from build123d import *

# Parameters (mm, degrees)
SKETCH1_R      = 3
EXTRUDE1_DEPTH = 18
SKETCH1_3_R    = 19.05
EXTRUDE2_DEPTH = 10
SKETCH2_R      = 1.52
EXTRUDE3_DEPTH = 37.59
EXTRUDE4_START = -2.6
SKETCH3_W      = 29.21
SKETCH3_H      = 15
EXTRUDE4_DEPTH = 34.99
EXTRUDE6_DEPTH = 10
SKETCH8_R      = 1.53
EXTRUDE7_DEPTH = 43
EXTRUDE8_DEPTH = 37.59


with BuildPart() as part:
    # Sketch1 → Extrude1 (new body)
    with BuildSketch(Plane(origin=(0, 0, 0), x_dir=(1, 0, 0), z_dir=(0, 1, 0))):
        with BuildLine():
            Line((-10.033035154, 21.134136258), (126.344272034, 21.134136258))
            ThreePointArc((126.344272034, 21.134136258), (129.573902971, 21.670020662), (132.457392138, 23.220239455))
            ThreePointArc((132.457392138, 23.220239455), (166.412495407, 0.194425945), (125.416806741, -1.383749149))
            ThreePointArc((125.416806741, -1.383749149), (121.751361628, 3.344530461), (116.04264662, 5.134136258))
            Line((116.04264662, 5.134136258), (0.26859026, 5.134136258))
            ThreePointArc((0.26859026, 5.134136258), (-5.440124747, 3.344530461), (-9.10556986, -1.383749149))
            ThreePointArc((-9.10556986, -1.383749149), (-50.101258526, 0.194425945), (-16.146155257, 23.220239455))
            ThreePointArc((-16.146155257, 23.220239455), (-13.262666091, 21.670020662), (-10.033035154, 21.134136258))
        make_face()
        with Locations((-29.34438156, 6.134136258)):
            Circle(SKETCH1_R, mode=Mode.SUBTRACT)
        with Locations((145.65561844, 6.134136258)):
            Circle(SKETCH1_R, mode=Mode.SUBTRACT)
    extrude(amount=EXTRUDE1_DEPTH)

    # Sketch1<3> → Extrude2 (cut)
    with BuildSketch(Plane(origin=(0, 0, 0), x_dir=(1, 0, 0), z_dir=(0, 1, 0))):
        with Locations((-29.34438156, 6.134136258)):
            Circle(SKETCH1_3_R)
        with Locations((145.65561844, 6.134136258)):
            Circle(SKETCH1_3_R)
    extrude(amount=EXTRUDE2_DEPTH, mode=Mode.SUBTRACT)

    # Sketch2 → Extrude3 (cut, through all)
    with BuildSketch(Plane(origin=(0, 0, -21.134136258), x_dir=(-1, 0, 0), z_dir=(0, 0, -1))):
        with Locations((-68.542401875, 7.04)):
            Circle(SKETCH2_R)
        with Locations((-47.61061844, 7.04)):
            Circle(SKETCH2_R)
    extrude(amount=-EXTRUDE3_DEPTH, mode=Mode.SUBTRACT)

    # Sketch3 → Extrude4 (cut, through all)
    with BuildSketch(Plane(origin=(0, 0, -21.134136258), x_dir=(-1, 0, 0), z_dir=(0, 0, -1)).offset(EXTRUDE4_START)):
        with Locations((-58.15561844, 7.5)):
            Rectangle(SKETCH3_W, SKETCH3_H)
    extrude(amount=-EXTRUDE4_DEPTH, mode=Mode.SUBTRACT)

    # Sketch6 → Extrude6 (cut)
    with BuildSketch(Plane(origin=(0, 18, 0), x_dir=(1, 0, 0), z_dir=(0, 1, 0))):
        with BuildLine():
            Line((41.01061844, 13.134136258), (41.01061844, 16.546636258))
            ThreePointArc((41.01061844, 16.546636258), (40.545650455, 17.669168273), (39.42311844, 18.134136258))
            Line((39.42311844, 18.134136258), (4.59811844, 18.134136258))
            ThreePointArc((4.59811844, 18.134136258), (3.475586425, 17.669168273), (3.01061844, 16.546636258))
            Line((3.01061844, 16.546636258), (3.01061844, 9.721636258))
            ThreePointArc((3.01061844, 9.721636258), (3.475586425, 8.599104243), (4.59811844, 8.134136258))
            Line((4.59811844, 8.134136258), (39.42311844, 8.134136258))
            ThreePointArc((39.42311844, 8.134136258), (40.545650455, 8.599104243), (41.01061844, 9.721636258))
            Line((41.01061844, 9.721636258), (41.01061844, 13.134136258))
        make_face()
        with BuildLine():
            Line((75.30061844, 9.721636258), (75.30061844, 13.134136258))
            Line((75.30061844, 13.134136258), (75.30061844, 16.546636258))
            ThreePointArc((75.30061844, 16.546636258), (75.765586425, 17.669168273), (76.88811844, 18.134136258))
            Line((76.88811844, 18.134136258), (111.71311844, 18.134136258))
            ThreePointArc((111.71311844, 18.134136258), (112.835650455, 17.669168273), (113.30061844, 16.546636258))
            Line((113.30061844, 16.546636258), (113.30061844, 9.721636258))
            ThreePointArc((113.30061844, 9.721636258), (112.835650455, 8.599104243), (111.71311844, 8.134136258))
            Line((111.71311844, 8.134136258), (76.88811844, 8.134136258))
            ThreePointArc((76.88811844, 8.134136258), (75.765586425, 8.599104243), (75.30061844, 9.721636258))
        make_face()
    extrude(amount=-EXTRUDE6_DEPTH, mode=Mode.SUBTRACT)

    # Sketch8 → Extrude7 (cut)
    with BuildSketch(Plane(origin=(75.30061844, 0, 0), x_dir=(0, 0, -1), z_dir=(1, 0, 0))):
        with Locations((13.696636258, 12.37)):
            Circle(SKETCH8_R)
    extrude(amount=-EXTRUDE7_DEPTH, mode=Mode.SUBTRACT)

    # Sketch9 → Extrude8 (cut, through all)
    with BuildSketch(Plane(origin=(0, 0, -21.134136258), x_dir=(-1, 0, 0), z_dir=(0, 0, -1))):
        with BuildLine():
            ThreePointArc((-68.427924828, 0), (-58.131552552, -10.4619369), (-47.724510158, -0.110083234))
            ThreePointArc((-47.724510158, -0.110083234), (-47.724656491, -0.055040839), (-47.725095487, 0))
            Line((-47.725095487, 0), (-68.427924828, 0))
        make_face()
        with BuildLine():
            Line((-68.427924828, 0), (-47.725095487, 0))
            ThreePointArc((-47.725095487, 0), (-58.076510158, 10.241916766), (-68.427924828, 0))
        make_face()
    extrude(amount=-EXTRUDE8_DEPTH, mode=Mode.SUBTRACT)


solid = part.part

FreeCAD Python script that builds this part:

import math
import FreeCAD as App
import Part
import Sketcher

doc = App.newDocument("Part")
params = doc.addObject("Spreadsheet::Sheet", "Params")
for row, (alias, value) in enumerate([
    ("sketch1_diameter", "6 mm"),
    ("sketch1_radius", "10 mm"),
    ("sketch1_radius2", "21.59 mm"),
    ("pad1_length", "18 mm"),
    ("sketch2_diameter", "38.1 mm"),
    ("pocket1_length", "10 mm"),
    ("sketch3_diameter", "3.04 mm"),
    ("sketch4_height", "15 mm"),
    ("sketch4_width", "29.21 mm"),
    ("pocket4_length", "10 mm"),
    ("sketch6_diameter", "3.06 mm"),
    ("pocket5_length", "43 mm"),
], start=1):
    params.set(f"A{row}", alias)
    params.set(f"B{row}", "=" + value)
    params.setAlias(f"B{row}", alias)

body = doc.addObject("PartDesign::Body", "Body")

sketch1 = body.newObject("Sketcher::SketchObject", "Sketch")
sketch1.AttachmentSupport = (doc.getObject("XZ_Plane"), [""])
sketch1.MapMode = "FlatFace"
sketch1.addGeometry([
    Part.LineSegment(App.Vector(126.3, -21.1, 0), App.Vector(-10, -21.1, 0)),
    Part.ArcOfCircle(Part.Circle(App.Vector(-10, -31.1, 0), App.Vector(0, 0, 1), 10), math.radians(90), math.radians(128)),
    Part.ArcOfCircle(Part.Circle(App.Vector(-29.3, -6.1, 0), App.Vector(0, 0, 1), 21.6), math.radians(20), math.radians(308)),
    Part.ArcOfCircle(Part.Circle(App.Vector(0.3, 4.9, 0), App.Vector(0, 0, 1), 10), math.radians(-160), math.radians(-90)),
    Part.LineSegment(App.Vector(0.3, -5.1, 0), App.Vector(116, -5.1, 0)),
    Part.ArcOfCircle(Part.Circle(App.Vector(116, 4.9, 0), App.Vector(0, 0, 1), 10), math.radians(-90), math.radians(-20)),
    Part.ArcOfCircle(Part.Circle(App.Vector(145.7, -6.1, 0), App.Vector(0, 0, 1), 21.6), math.radians(-128), math.radians(160)),
    Part.ArcOfCircle(Part.Circle(App.Vector(126.3, -31.1, 0), App.Vector(0, 0, 1), 10), math.radians(52), math.radians(90)),
    Part.Circle(App.Vector(145.7, -6.1, 0), App.Vector(0, 0, 1), 3),
    Part.Circle(App.Vector(-29.3, -6.1, 0), App.Vector(0, 0, 1), 3),
], False)
sketch1.addConstraint([
    Sketcher.Constraint("Tangent", 0, 2, 1, 1),
    Sketcher.Constraint("Tangent", 1, 2, 2, 2),
    Sketcher.Constraint("Tangent", 2, 1, 3, 1),
    Sketcher.Constraint("Tangent", 3, 2, 4, 1),
    Sketcher.Constraint("Tangent", 4, 2, 5, 1),
    Sketcher.Constraint("Tangent", 5, 2, 6, 2),
    Sketcher.Constraint("Tangent", 6, 1, 7, 1),
    Sketcher.Constraint("Tangent", 7, 2, 0, 1),
    Sketcher.Constraint("Horizontal", 0),
    Sketcher.Constraint("Horizontal", 4),
    Sketcher.Constraint("Coincident", 8, 3, 6, 3),
    Sketcher.Constraint("Coincident", 9, 3, 2, 3),
    Sketcher.Constraint("Equal", 1, 3),
    Sketcher.Constraint("Equal", 3, 5),
    Sketcher.Constraint("Equal", 2, 6),
    Sketcher.Constraint("Equal", 5, 7),
    Sketcher.Constraint("Equal", 8, 9),
    Sketcher.Constraint("Horizontal", 2, 3, 6, 3),
    Sketcher.Constraint("Diameter", 8, 6.0),
    Sketcher.Constraint("Radius", 1, 10.0),
    Sketcher.Constraint("Radius", 2, 21.59),
    Sketcher.Constraint("DistanceY", 1, 3, 2, 3, 25.0),
    Sketcher.Constraint("DistanceY", 2, 3, 3, 3, 11.0),
    Sketcher.Constraint("DistanceX", 2, 3, 6, 3, 175.0),
    Sketcher.Constraint("DistanceX", 2, 3, -1, 1, 29.344382),
    Sketcher.Constraint("DistanceY", 1, 2, -1, 1, 23.220239),
])
sketch1.setExpression("Constraints[18]", "Params.sketch1_diameter")
sketch1.setExpression("Constraints[19]", "Params.sketch1_radius")
sketch1.setExpression("Constraints[20]", "Params.sketch1_radius2")
pad1 = body.newObject("PartDesign::Pad", "Pad")
pad1.Profile = sketch1
pad1.setExpression("Length", "Params.pad1_length")
pad1.Reversed = True

sketch2 = body.newObject("Sketcher::SketchObject", "Sketch001")
sketch2.AttachmentSupport = (doc.getObject("XZ_Plane"), [""])
sketch2.MapMode = "FlatFace"
sketch2.addGeometry([
    Part.Circle(App.Vector(-29, -6, 0), App.Vector(0, 0, 1), 19),
    Part.Circle(App.Vector(146, -6, 0), App.Vector(0, 0, 1), 19),
], False)
sketch2.addConstraint([
    Sketcher.Constraint("Equal", 0, 1),
    Sketcher.Constraint("Horizontal", 0, 3, 1, 3),
    Sketcher.Constraint("Diameter", 0, 38.1),
    Sketcher.Constraint("DistanceX", 0, 3, 1, 3, 175.0),
    Sketcher.Constraint("DistanceX", 0, 3, -1, 1, 29.344382),
    Sketcher.Constraint("DistanceY", 0, 3, -1, 1, 6.134136),
])
sketch2.setExpression("Constraints[2]", "Params.sketch2_diameter")
pocket1 = body.newObject("PartDesign::Pocket", "Pocket")
pocket1.Profile = sketch2
pocket1.setExpression("Length", "Params.pocket1_length")

sketch3 = body.newObject("Sketcher::SketchObject", "Sketch002")
sketch3.AttachmentSupport = (doc.getObject("XY_Plane"), [""])
sketch3.MapMode = "FlatFace"
sketch3.AttachmentOffset = App.Placement(App.Vector(0, 0, -21.134136), App.Rotation())
sketch3.addGeometry([
    Part.Circle(App.Vector(68.5, 7, 0), App.Vector(0, 0, 1), 1.5),
    Part.Circle(App.Vector(47.6, 7, 0), App.Vector(0, 0, 1), 1.5),
], False)
sketch3.addConstraint([
    Sketcher.Constraint("Equal", 0, 1),
    Sketcher.Constraint("Horizontal", 0, 3, 1, 3),
    Sketcher.Constraint("Diameter", 0, 3.04),
    Sketcher.Constraint("DistanceY", -1, 1, 0, 3, 7.04),
    Sketcher.Constraint("DistanceX", -1, 1, 0, 3, 68.542402),
    Sketcher.Constraint("DistanceX", -1, 1, 1, 3, 47.610618),
])
sketch3.setExpression("Constraints[2]", "Params.sketch3_diameter")
pocket2 = body.newObject("PartDesign::Pocket", "Pocket001")
pocket2.Profile = sketch3
pocket2.Type = "ThroughAll"
pocket2.Reversed = True

sketch4 = body.newObject("Sketcher::SketchObject", "Sketch003")
sketch4.AttachmentSupport = (doc.getObject("XY_Plane"), [""])
sketch4.MapMode = "FlatFace"
sketch4.AttachmentOffset = App.Placement(App.Vector(0, 0, -18.534136), App.Rotation())
sketch4.addGeometry([
    Part.LineSegment(App.Vector(73, 15, 0), App.Vector(73, 0, 0)),
    Part.LineSegment(App.Vector(73, 0, 0), App.Vector(44, 0, 0)),
    Part.LineSegment(App.Vector(44, 0, 0), App.Vector(44, 15, 0)),
    Part.LineSegment(App.Vector(44, 15, 0), App.Vector(73, 15, 0)),
], False)
sketch4.addConstraint([
    Sketcher.Constraint("Coincident", 0, 2, 1, 1),
    Sketcher.Constraint("Coincident", 1, 2, 2, 1),
    Sketcher.Constraint("Coincident", 2, 2, 3, 1),
    Sketcher.Constraint("Coincident", 3, 2, 0, 1),
    Sketcher.Constraint("Vertical", 0),
    Sketcher.Constraint("Horizontal", 1),
    Sketcher.Constraint("Vertical", 2),
    Sketcher.Constraint("Horizontal", 3),
    Sketcher.Constraint("PointOnObject", 0, 2, -1),
    Sketcher.Constraint("DistanceY", 0, 2, 0, 1, 15.0),
    Sketcher.Constraint("DistanceX", 1, 2, 1, 1, 29.21),
    Sketcher.Constraint("DistanceX", -1, 1, 0, 2, 72.760618),
])
sketch4.setExpression("Constraints[9]", "Params.sketch4_height")
sketch4.setExpression("Constraints[10]", "Params.sketch4_width")
pocket3 = body.newObject("PartDesign::Pocket", "Pocket002")
pocket3.Profile = sketch4
pocket3.Type = "ThroughAll"
pocket3.Reversed = True

sketch5 = body.newObject("Sketcher::SketchObject", "Sketch004")
sketch5.AttachmentSupport = (doc.getObject("XZ_Plane"), [""])
sketch5.MapMode = "FlatFace"
sketch5.AttachmentOffset = App.Placement(App.Vector(0, 0, -18), App.Rotation())
sketch5.addGeometry([
    Part.ArcOfCircle(Part.Circle(App.Vector(39.4, -16.5, 0), App.Vector(0, 0, 1), 1.6), math.radians(-90), math.radians(0)),
    Part.LineSegment(App.Vector(39.4, -18.1, 0), App.Vector(4.6, -18.1, 0)),
    Part.ArcOfCircle(Part.Circle(App.Vector(4.6, -16.5, 0), App.Vector(0, 0, 1), 1.6), math.radians(180), math.radians(270)),
    Part.LineSegment(App.Vector(3, -16.5, 0), App.Vector(3, -9.7, 0)),
    Part.ArcOfCircle(Part.Circle(App.Vector(4.6, -9.7, 0), App.Vector(0, 0, 1), 1.6), math.radians(90), math.radians(180)),
    Part.LineSegment(App.Vector(4.6, -8.1, 0), App.Vector(39.4, -8.1, 0)),
    Part.ArcOfCircle(Part.Circle(App.Vector(39.4, -9.7, 0), App.Vector(0, 0, 1), 1.6), math.radians(0), math.radians(90)),
    Part.LineSegment(App.Vector(41, -9.7, 0), App.Vector(41, -16.5, 0)),
    Part.LineSegment(App.Vector(75.3, -16.5, 0), App.Vector(75.3, -9.7, 0)),
    Part.ArcOfCircle(Part.Circle(App.Vector(76.9, -9.7, 0), App.Vector(0, 0, 1), 1.6), math.radians(90), math.radians(180)),
    Part.LineSegment(App.Vector(76.9, -8.1, 0), App.Vector(111.7, -8.1, 0)),
    Part.ArcOfCircle(Part.Circle(App.Vector(111.7, -9.7, 0), App.Vector(0, 0, 1), 1.6), math.radians(0), math.radians(90)),
    Part.LineSegment(App.Vector(113.3, -9.7, 0), App.Vector(113.3, -16.5, 0)),
    Part.ArcOfCircle(Part.Circle(App.Vector(111.7, -16.5, 0), App.Vector(0, 0, 1), 1.6), math.radians(-90), math.radians(0)),
    Part.LineSegment(App.Vector(111.7, -18.1, 0), App.Vector(76.9, -18.1, 0)),
    Part.ArcOfCircle(Part.Circle(App.Vector(76.9, -16.5, 0), App.Vector(0, 0, 1), 1.6), math.radians(180), math.radians(270)),
], False)
sketch5.addConstraint([
    Sketcher.Constraint("Tangent", 0, 1, 1, 1),
    Sketcher.Constraint("Tangent", 1, 2, 2, 2),
    Sketcher.Constraint("Tangent", 2, 1, 3, 1),
    Sketcher.Constraint("Tangent", 3, 2, 4, 2),
    Sketcher.Constraint("Tangent", 4, 1, 5, 1),
    Sketcher.Constraint("Tangent", 5, 2, 6, 2),
    Sketcher.Constraint("Tangent", 6, 1, 7, 1),
    Sketcher.Constraint("Tangent", 7, 2, 0, 2),
    Sketcher.Constraint("Tangent", 8, 2, 9, 2),
    Sketcher.Constraint("Tangent", 9, 1, 10, 1),
    Sketcher.Constraint("Tangent", 10, 2, 11, 2),
    Sketcher.Constraint("Tangent", 11, 1, 12, 1),
    Sketcher.Constraint("Tangent", 12, 2, 13, 2),
    Sketcher.Constraint("Tangent", 13, 1, 14, 1),
    Sketcher.Constraint("Tangent", 14, 2, 15, 2),
    Sketcher.Constraint("Tangent", 15, 1, 8, 1),
    Sketcher.Constraint("Horizontal", 1),
    Sketcher.Constraint("Vertical", 3),
    Sketcher.Constraint("Horizontal", 5),
    Sketcher.Constraint("Vertical", 7),
    Sketcher.Constraint("Vertical", 8),
    Sketcher.Constraint("Horizontal", 10),
    Sketcher.Constraint("Vertical", 12),
    Sketcher.Constraint("Horizontal", 14),
    Sketcher.Constraint("Equal", 0, 2),
    Sketcher.Constraint("Equal", 2, 4),
    Sketcher.Constraint("Equal", 4, 6),
    Sketcher.Constraint("Equal", 6, 9),
    Sketcher.Constraint("Equal", 9, 11),
    Sketcher.Constraint("Equal", 11, 13),
    Sketcher.Constraint("Equal", 13, 15),
    Sketcher.Constraint("Horizontal", 6, 3, 9, 3),
    Sketcher.Constraint("Horizontal", 2, 3, 13, 3),
    Sketcher.Constraint("Equal", 5, 10),
    Sketcher.Constraint("DistanceY", 1, 2, 4, 1, 10.0),
    Sketcher.Constraint("Radius", 0, 1.5875),
    Sketcher.Constraint("DistanceX", 1, 2, 1, 1, 34.825),
    Sketcher.Constraint("DistanceX", 4, 3, 9, 3, 72.29),
    Sketcher.Constraint("DistanceX", -1, 1, 0, 3, 39.423118),
    Sketcher.Constraint("DistanceY", 0, 3, -1, 1, 16.546636),
])
pocket4 = body.newObject("PartDesign::Pocket", "Pocket003")
pocket4.Profile = sketch5
pocket4.setExpression("Length", "Params.pocket4_length")
pocket4.Reversed = True

sketch6 = body.newObject("Sketcher::SketchObject", "Sketch005")
sketch6.AttachmentSupport = (doc.getObject("YZ_Plane"), [""])
sketch6.MapMode = "FlatFace"
sketch6.AttachmentOffset = App.Placement(App.Vector(0, 0, 75.300618), App.Rotation())
sketch6.addGeometry(Part.Circle(App.Vector(12.4, -13.7, 0), App.Vector(0, 0, 1), 1.5), False)
sketch6.addConstraint([
    Sketcher.Constraint("Diameter", 0, 3.06),
    Sketcher.Constraint("DistanceX", -1, 1, 0, 3, 12.37),
    Sketcher.Constraint("DistanceY", 0, 3, -1, 1, 13.696636),
])
sketch6.setExpression("Constraints[0]", "Params.sketch6_diameter")
pocket5 = body.newObject("PartDesign::Pocket", "Pocket004")
pocket5.Profile = sketch6
pocket5.setExpression("Length", "Params.pocket5_length")

sketch7 = body.newObject("Sketcher::SketchObject", "Sketch006")
sketch7.AttachmentSupport = (doc.getObject("XY_Plane"), [""])
sketch7.MapMode = "FlatFace"
sketch7.AttachmentOffset = App.Placement(App.Vector(0, 0, -21.134136), App.Rotation())
sketch7.addGeometry([
    Part.ArcOfCircle(Part.Circle(App.Vector(58.07651, -0.110083, 0), App.Vector(0, 0, 1), 10.352), math.radians(180), math.radians(360.609295)),
    Part.ArcOfCircle(Part.Circle(App.Vector(58.076498, -0.110083, 0), App.Vector(0, 0, 1), 10.351988), math.radians(179.390705), math.radians(180.000001)),
    Part.ArcOfCircle(Part.Circle(App.Vector(58.07651, -0.110083, 0), App.Vector(0, 0, 1), 10.352), math.radians(0.609295), math.radians(179.390705)),
], False)
sketch7.addConstraint([
    Sketcher.Constraint("Coincident", 0, 1, 1, 2),
    Sketcher.Constraint("Coincident", 1, 1, 2, 2),
    Sketcher.Constraint("Coincident", 2, 1, 0, 2),
    Sketcher.Constraint("Coincident", 2, 3, 0, 3),
    Sketcher.Constraint("PointOnObject", 1, 1, -1),
    Sketcher.Constraint("PointOnObject", 2, 1, -1),
    Sketcher.Constraint("Radius", 0, 10.352),
    Sketcher.Constraint("Radius", 1, 10.351988),
    Sketcher.Constraint("DistanceX", -1, 1, 1, 3, 58.076498),
    Sketcher.Constraint("DistanceX", 1, 1, 2, 1, 20.702829),
    Sketcher.Constraint("DistanceY", 0, 1, -1, 1, 0.110083),
])
pocket6 = body.newObject("PartDesign::Pocket", "Pocket005")
pocket6.Profile = sketch7
pocket6.Type = "ThroughAll"
pocket6.Reversed = True

doc.recompute()
